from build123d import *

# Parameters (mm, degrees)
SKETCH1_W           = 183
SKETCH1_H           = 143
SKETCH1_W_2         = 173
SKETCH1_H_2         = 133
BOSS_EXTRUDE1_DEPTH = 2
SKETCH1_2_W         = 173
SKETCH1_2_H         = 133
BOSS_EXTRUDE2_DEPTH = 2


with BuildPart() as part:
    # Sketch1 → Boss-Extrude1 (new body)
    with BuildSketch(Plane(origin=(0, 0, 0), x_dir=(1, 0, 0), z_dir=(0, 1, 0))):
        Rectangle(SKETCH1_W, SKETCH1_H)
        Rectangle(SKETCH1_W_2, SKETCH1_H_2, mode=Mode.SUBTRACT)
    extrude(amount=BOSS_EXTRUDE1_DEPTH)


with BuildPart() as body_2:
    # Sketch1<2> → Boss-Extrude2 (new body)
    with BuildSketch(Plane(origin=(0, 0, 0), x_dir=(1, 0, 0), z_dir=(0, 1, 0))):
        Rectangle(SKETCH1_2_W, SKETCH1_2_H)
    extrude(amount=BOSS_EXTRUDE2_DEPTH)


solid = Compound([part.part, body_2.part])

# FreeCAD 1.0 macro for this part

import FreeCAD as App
import Part
import Sketcher
from FreeCAD import Vector


def add_polygon(sketch, points):
    """Adds a closed chain of lines whose ends are joined by coincident constraints."""
    first, n = sketch.GeometryCount, len(points)
    for a, b in zip(points, points[1:] + points[:1]):
        sketch.addGeometry(Part.LineSegment(App.Vector(*a, 0), App.Vector(*b, 0)), False)
    for i in range(n):
        sketch.addConstraint(Sketcher.Constraint("Coincident", first + i, 2, first + (i + 1) % n, 1))

doc = App.newDocument("Part")
body = doc.addObject("PartDesign::Body", "Body")

sketch1 = doc.addObject("Sketcher::SketchObject", "Sketch")
body.addObject(sketch1)
sketch1.AttachmentSupport = (doc.XZ_Plane, [""])
sketch1.MapMode = "FlatFace"
add_polygon(sketch1, [(-92, -72), (-92, 72), (92, 72), (92, -72)])
add_polygon(sketch1, [(86, 66), (-86, 66), (-86, -66), (86, -66)])
sketch1.addConstraint([
    Sketcher.Constraint("Vertical", 0),
    Sketcher.Constraint("Horizontal", 1),
    Sketcher.Constraint("Vertical", 2),
    Sketcher.Constraint("Horizontal", 3),
    Sketcher.Constraint("Horizontal", 4),
    Sketcher.Constraint("Vertical", 5),
    Sketcher.Constraint("Horizontal", 6),
    Sketcher.Constraint("Vertical", 7),
    Sketcher.Constraint("Symmetric", 0, 2, 2, 2, -1, 1),
    Sketcher.Constraint("Symmetric", 4, 2, 6, 2, -1, 1),
    Sketcher.Constraint("DistanceX", 1, 1, 1, 2, 183.0),
    Sketcher.Constraint("DistanceX", 4, 2, 4, 1, 173.0),
    Sketcher.Constraint("DistanceY", 0, 1, 0, 2, 143.0),
    Sketcher.Constraint("DistanceY", 5, 2, 5, 1, 133.0),
])
pad1 = doc.addObject("PartDesign::Pad", "Pad")
body.addObject(pad1)
pad1.Profile = sketch1
pad1.Length = 2
pad1.Reversed = True
body2 = doc.addObject("PartDesign::Body", "Body001")

sketch2 = doc.addObject("Sketcher::SketchObject", "Sketch001")
body2.addObject(sketch2)
sketch2.AttachmentSupport = (doc.getObject("XZ_Plane001"), [""])
sketch2.MapMode = "FlatFace"
add_polygon(sketch2, [(-86, -66), (-86, 66), (86, 66), (86, -66)])
sketch2.addConstraint([
    Sketcher.Constraint("Vertical", 0),
    Sketcher.Constraint("Horizontal", 1),
    Sketcher.Constraint("Vertical", 2),
    Sketcher.Constraint("Horizontal", 3),
    Sketcher.Constraint("Symmetric", 0, 2, 2, 2, -1, 1),
    Sketcher.Constraint("DistanceX", 1, 1, 1, 2, 173.0),
    Sketcher.Constraint("DistanceY", 0, 1, 0, 2, 133.0),
])
pad2 = doc.addObject("PartDesign::Pad", "Pad001")
body2.addObject(pad2)
pad2.Profile = sketch2
pad2.Length = 2
pad2.Reversed = True

doc.recompute()
